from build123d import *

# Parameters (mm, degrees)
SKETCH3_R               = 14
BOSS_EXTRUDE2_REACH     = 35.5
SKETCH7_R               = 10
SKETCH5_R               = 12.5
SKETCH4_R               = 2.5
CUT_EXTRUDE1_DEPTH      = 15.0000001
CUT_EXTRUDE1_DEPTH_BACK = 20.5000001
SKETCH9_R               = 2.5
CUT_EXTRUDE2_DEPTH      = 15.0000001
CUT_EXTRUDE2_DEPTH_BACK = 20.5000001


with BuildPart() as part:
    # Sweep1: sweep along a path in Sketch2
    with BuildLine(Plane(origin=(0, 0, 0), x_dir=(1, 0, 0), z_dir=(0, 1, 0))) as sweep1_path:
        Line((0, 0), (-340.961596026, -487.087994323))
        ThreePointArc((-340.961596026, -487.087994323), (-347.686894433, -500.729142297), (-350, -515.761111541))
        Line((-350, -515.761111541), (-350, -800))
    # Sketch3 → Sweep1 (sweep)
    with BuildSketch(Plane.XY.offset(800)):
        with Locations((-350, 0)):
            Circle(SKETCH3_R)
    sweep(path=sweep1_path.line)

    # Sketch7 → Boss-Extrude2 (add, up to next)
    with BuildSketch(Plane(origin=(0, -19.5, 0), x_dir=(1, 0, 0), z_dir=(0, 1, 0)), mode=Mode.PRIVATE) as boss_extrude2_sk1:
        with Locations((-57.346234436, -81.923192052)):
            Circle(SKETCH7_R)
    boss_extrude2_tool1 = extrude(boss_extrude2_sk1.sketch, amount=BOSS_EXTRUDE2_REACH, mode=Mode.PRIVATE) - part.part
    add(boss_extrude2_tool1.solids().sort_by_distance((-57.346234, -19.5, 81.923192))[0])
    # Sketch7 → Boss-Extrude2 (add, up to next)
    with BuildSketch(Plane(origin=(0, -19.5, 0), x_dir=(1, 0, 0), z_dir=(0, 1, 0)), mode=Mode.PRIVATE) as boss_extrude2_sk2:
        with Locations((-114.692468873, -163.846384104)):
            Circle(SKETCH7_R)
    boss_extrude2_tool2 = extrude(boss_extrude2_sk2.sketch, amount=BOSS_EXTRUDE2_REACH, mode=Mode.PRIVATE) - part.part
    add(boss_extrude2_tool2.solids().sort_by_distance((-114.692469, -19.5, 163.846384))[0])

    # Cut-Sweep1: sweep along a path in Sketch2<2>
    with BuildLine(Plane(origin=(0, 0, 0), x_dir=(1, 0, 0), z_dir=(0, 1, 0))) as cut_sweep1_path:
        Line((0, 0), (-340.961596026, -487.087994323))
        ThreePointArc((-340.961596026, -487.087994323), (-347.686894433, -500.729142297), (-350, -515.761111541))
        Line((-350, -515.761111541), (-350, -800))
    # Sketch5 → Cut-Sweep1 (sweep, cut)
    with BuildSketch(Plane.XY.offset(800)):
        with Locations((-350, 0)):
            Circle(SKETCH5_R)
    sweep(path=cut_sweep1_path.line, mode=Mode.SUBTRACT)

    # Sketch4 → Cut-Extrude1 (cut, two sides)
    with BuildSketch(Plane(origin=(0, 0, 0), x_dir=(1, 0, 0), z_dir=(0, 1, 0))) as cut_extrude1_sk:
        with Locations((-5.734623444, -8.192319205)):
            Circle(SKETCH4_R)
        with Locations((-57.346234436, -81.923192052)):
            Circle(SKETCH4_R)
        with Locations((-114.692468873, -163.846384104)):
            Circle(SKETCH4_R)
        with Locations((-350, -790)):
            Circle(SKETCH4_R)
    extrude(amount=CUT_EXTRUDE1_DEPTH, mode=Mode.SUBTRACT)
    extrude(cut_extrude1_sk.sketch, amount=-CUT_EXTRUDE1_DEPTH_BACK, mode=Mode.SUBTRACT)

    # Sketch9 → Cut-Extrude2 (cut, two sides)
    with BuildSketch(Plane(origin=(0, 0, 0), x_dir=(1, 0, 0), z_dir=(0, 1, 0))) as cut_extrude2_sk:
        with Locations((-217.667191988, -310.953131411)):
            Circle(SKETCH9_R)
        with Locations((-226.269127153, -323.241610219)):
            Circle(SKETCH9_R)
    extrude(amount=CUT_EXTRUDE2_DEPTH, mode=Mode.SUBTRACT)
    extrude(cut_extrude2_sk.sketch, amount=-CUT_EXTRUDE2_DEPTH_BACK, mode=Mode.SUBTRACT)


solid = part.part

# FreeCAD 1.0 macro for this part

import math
import FreeCAD as App
import Part
import Sketcher

doc = App.newDocument("Part")
body = doc.addObject("PartDesign::Body", "Body")

# Sketch on XY plane
sketch1 = body.newObject("Sketcher::SketchObject", "Sketch")
sketch1.AttachmentSupport = (doc.getObject("XY_Plane"), [""])
sketch1.MapMode = "FlatFace"
sketch1.AttachmentOffset = App.Placement(App.Vector(0, 0, 800), App.Rotation())
sketch1.addGeometry(Part.Circle(App.Vector(-350, 0, 0), App.Vector(0, 0, 1), 14), False)
sketch1.addConstraint(Sketcher.Constraint("PointOnObject", 0, 3, -1))
sketch1.addConstraint(Sketcher.Constraint("Diameter", 0, 28.0))
sketch1.addConstraint(Sketcher.Constraint("DistanceX", 0, 3, -1, 1, 350.0))

# Sketch on XZ plane
sketch2 = body.newObject("Sketcher::SketchObject", "Sketch001")
sketch2.AttachmentSupport = (doc.getObject("XZ_Plane"), [""])
sketch2.MapMode = "FlatFace"
sketch2.addGeometry(Part.LineSegment(App.Vector(0, 0, 0), App.Vector(-341, 487, 0)), False)
sketch2.addGeometry(Part.ArcOfCircle(Part.Circle(App.Vector(-300, 516, 0), App.Vector(0, 0, 1), 50), math.radians(180), math.radians(215)), False)
sketch2.addGeometry(Part.LineSegment(App.Vector(-350, 516, 0), App.Vector(-350, 800, 0)), False)
sketch2.addConstraint(Sketcher.Constraint("Tangent", 0, 2, 1, 2))
sketch2.addConstraint(Sketcher.Constraint("Tangent", 1, 1, 2, 1))
sketch2.addConstraint(Sketcher.Constraint("Vertical", 2))
sketch2.addConstraint(Sketcher.Constraint("Coincident", 0, 1, -1, 1))
sketch2.addConstraint(Sketcher.Constraint("Radius", 1, 50.0))
sketch2.addConstraint(Sketcher.Constraint("DistanceX", 1, 3, -1, 1, 300.0))
sketch2.addConstraint(Sketcher.Constraint("DistanceY", -1, 1, 2, 2, 800.0))
sketch2.addConstraint(Sketcher.Constraint("DistanceY", 2, 1, 2, 2, 284.238888))
doc.recompute()

additivepipe = body.newObject("PartDesign::AdditivePipe", "AdditivePipe")
additivepipe.Profile = sketch1
additivepipe.Spine = (sketch2, ["Edge1", "Edge2", "Edge3"])

# Sketch on XZ plane
sketch3 = body.newObject("Sketcher::SketchObject", "Sketch002")
sketch3.AttachmentSupport = (doc.getObject("XZ_Plane"), [""])
sketch3.MapMode = "FlatFace"
sketch3.AttachmentOffset = App.Placement(App.Vector(0, 0, 19.5), App.Rotation())
sketch3.addGeometry(Part.Circle(App.Vector(-57, 82, 0), App.Vector(0, 0, 1), 10), False)
sketch3.addConstraint(Sketcher.Constraint("Diameter", 0, 20.0))
sketch3.addConstraint(Sketcher.Constraint("DistanceX", 0, 3, -1, 1, 57.346234))
sketch3.addConstraint(Sketcher.Constraint("DistanceY", -1, 1, 0, 3, 81.923192))
pad1 = body.newObject("PartDesign::Pad", "Pad")
pad1.Profile = sketch3
pad1.Type = "UpToFirst"
pad1.Reversed = True

# Sketch on XZ plane
sketch4 = body.newObject("Sketcher::SketchObject", "Sketch003")
sketch4.AttachmentSupport = (doc.getObject("XZ_Plane"), [""])
sketch4.MapMode = "FlatFace"
sketch4.AttachmentOffset = App.Placement(App.Vector(0, 0, 19.5), App.Rotation())
sketch4.addGeometry(Part.Circle(App.Vector(-115, 164, 0), App.Vector(0, 0, 1), 10), False)
sketch4.addConstraint(Sketcher.Constraint("Diameter", 0, 20.0))
sketch4.addConstraint(Sketcher.Constraint("DistanceX", 0, 3, -1, 1, 114.692469))
sketch4.addConstraint(Sketcher.Constraint("DistanceY", -1, 1, 0, 3, 163.846384))
pad2 = body.newObject("PartDesign::Pad", "Pad001")
pad2.Profile = sketch4
pad2.Type = "UpToFirst"
pad2.Reversed = True

# Sketch on XY plane
sketch5 = body.newObject("Sketcher::SketchObject", "Sketch004")
sketch5.AttachmentSupport = (doc.getObject("XY_Plane"), [""])
sketch5.MapMode = "FlatFace"
sketch5.AttachmentOffset = App.Placement(App.Vector(0, 0, 800), App.Rotation())
sketch5.addGeometry(Part.Circle(App.Vector(-350, 0, 0), App.Vector(0, 0, 1), 12), False)
sketch5.addConstraint(Sketcher.Constraint("PointOnObject", 0, 3, -1))
sketch5.addConstraint(Sketcher.Constraint("Diameter", 0, 25.0))
sketch5.addConstraint(Sketcher.Constraint("DistanceX", 0, 3, -1, 1, 350.0))

# Sketch on XZ plane
sketch6 = body.newObject("Sketcher::SketchObject", "Sketch005")
sketch6.AttachmentSupport = (doc.getObject("XZ_Plane"), [""])
sketch6.MapMode = "FlatFace"
sketch6.addGeometry(Part.LineSegment(App.Vector(0, 0, 0), App.Vector(-341, 487, 0)), False)
sketch6.addGeometry(Part.ArcOfCircle(Part.Circle(App.Vector(-300, 516, 0), App.Vector(0, 0, 1), 50), math.radians(180), math.radians(215)), False)
sketch6.addGeometry(Part.LineSegment(App.Vector(-350, 516, 0), App.Vector(-350, 800, 0)), False)
sketch6.addConstraint(Sketcher.Constraint("Tangent", 0, 2, 1, 2))
sketch6.addConstraint(Sketcher.Constraint("Tangent", 1, 1, 2, 1))
sketch6.addConstraint(Sketcher.Constraint("Vertical", 2))
sketch6.addConstraint(Sketcher.Constraint("Coincident", 0, 1, -1, 1))
sketch6.addConstraint(Sketcher.Constraint("Radius", 1, 50.0))
sketch6.addConstraint(Sketcher.Constraint("DistanceX", 1, 3, -1, 1, 300.0))
sketch6.addConstraint(Sketcher.Constraint("DistanceY", -1, 1, 2, 2, 800.0))
sketch6.addConstraint(Sketcher.Constraint("DistanceY", 2, 1, 2, 2, 284.238888))
doc.recompute()

subtractivepipe = body.newObject("PartDesign::SubtractivePipe", "SubtractivePipe")
subtractivepipe.Profile = sketch5
subtractivepipe.Spine = (sketch6, ["Edge1", "Edge2", "Edge3"])

# Sketch on XZ plane
sketch7 = body.newObject("Sketcher::SketchObject", "Sketch006")
sketch7.AttachmentSupport = (doc.getObject("XZ_Plane"), [""])
sketch7.MapMode = "FlatFace"
sketch7.addGeometry(Part.Circle(App.Vector(-5.7, 8.2, 0), App.Vector(0, 0, 1), 2.5), False)
sketch7.addGeometry(Part.Circle(App.Vector(-57.3, 81.9, 0), App.Vector(0, 0, 1), 2.5), False)
sketch7.addGeometry(Part.Circle(App.Vector(-114.7, 163.8, 0), App.Vector(0, 0, 1), 2.5), False)
sketch7.addGeometry(Part.Circle(App.Vector(-350, 790, 0), App.Vector(0, 0, 1), 2.5), False)
sketch7.addConstraint(Sketcher.Constraint("Equal", 0, 1))
sketch7.addConstraint(Sketcher.Constraint("Equal", 1, 2))
sketch7.addConstraint(Sketcher.Constraint("Equal", 2, 3))
sketch7.addConstraint(Sketcher.Constraint("Diameter", 0, 5.0))
sketch7.addConstraint(Sketcher.Constraint("DistanceX", 3, 3, -1, 1, 350.0))
sketch7.addConstraint(Sketcher.Constraint("DistanceY", -1, 1, 3, 3, 790.0))
sketch7.addConstraint(Sketcher.Constraint("DistanceY", -1, 1, 0, 3, 8.192319))
sketch7.addConstraint(Sketcher.Constraint("DistanceX", 2, 3, -1, 1, 114.692469))
sketch7.addConstraint(Sketcher.Constraint("DistanceX", 1, 3, 0, 3, 51.611611))
sketch7.addConstraint(Sketcher.Constraint("DistanceX", 0, 3, -1, 1, 5.734623))
sketch7.addConstraint(Sketcher.Constraint("DistanceY", -1, 1, 1, 3, 81.923192))
sketch7.addConstraint(Sketcher.Constraint("DistanceY", -1, 1, 2, 3, 163.846384))
pocket1 = body.newObject("PartDesign::Pocket", "Pocket")
pocket1.Profile = sketch7
pocket1.Type = "ThroughAll"
pocket1.Midplane = True

# Sketch on XZ plane
sketch8 = body.newObject("Sketcher::SketchObject", "Sketch007")
sketch8.AttachmentSupport = (doc.getObject("XZ_Plane"), [""])
sketch8.MapMode = "FlatFace"
sketch8.addGeometry(Part.Circle(App.Vector(-217.7, 311, 0), App.Vector(0, 0, 1), 2.5), False)
sketch8.addGeometry(Part.Circle(App.Vector(-226.3, 323.2, 0), App.Vector(0, 0, 1), 2.5), False)
sketch8.addConstraint(Sketcher.Constraint("Equal", 0, 1))
sketch8.addConstraint(Sketcher.Constraint("Diameter", 0, 5.0))
sketch8.addConstraint(Sketcher.Constraint("DistanceX", 0, 3, -1, 1, 217.667192))
sketch8.addConstraint(Sketcher.Constraint("DistanceY", -1, 1, 0, 3, 310.953131))
sketch8.addConstraint(Sketcher.Constraint("DistanceY", -1, 1, 1, 3, 323.24161))
sketch8.addConstraint(Sketcher.Constraint("DistanceX", 1, 3, -1, 1, 226.269127))
pocket2 = body.newObject("PartDesign::Pocket", "Pocket001")
pocket2.Profile = sketch8
pocket2.Type = "ThroughAll"
pocket2.Midplane = True

doc.recompute()
